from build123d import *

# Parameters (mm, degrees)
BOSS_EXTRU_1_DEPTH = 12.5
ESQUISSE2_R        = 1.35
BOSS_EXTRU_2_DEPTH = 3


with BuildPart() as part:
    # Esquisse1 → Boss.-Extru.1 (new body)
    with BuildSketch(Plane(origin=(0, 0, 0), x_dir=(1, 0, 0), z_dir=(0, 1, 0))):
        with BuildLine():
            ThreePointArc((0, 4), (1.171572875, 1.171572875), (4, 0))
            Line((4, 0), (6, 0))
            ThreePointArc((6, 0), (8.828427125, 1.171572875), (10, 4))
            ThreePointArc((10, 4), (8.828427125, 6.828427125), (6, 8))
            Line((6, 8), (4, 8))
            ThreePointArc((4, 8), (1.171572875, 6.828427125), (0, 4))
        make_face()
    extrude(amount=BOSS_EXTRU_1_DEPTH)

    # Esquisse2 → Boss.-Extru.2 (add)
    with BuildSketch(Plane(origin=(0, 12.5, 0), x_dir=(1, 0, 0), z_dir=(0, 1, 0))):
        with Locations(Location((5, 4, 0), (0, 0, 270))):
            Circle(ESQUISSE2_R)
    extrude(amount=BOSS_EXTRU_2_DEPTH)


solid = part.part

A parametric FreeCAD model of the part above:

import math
import FreeCAD as App
import Part
import Sketcher
from FreeCAD import Vector
Q = App.Units.Quantity

doc = App.newDocument("Part")
body = doc.addObject("PartDesign::Body", "Body")

# Sketch on XZ plane
sketch1 = doc.addObject("Sketcher::SketchObject", "Sketch")
body.addObject(sketch1)
sketch1.AttachmentSupport = (doc.XZ_Plane, [""])
sketch1.MapMode = "FlatFace"
sketch1.addGeometry(Part.ArcOfCircle(Part.Circle(Vector(4, -4, 0), Vector(0, 0, 1), 4), math.radians(90), math.radians(180)), False)
sketch1.addGeometry(Part.LineSegment(Vector(4, 0, 0), Vector(6, 0, 0)), False)
sketch1.addGeometry(Part.ArcOfCircle(Part.Circle(Vector(6, -4, 0), Vector(0, 0, 1), 4), math.radians(0), math.radians(90)), False)
sketch1.addGeometry(Part.ArcOfCircle(Part.Circle(Vector(6, -4, 0), Vector(0, 0, 1), 4), math.radians(-90), math.radians(0)), False)
sketch1.addGeometry(Part.LineSegment(Vector(6, -8, 0), Vector(4, -8, 0)), False)
sketch1.addGeometry(Part.ArcOfCircle(Part.Circle(Vector(4, -4, 0), Vector(0, 0, 1), 4), math.radians(180), math.radians(270)), False)
sketch1.addConstraint(Sketcher.Constraint("Tangent", 0, 1, 1, 1))
sketch1.addConstraint(Sketcher.Constraint("Tangent", 1, 2, 2, 2))
sketch1.addConstraint(Sketcher.Constraint("Tangent", 2, 1, 3, 2))
sketch1.addConstraint(Sketcher.Constraint("Tangent", 3, 1, 4, 1))
sketch1.addConstraint(Sketcher.Constraint("Tangent", 4, 2, 5, 2))
sketch1.addConstraint(Sketcher.Constraint("Tangent", 5, 1, 0, 2))
sketch1.addConstraint(Sketcher.Constraint("Horizontal", 1))
sketch1.addConstraint(Sketcher.Constraint("Horizontal", 4))
sketch1.addConstraint(Sketcher.Constraint("Equal", 0, 2))
sketch1.addConstraint(Sketcher.Constraint("Equal", 2, 3))
sketch1.addConstraint(Sketcher.Constraint("PointOnObject", 0, 1, -1))
sketch1.addConstraint(Sketcher.Constraint("PointOnObject", 5, 1, -2))
sketch1.addConstraint(Sketcher.Constraint("Horizontal", 5, 3, 2, 1))
sketch1.addConstraint(Sketcher.Constraint("Horizontal", 2, 1, 5, 1))
sketch1.addConstraint(Sketcher.Constraint("Radius", 0, Q("4 mm")))
sketch1.addConstraint(Sketcher.Constraint("DistanceX", 1, 1, 1, 2, Q("2 mm")))
pad1 = doc.addObject("PartDesign::Pad", "Pad")
body.addObject(pad1)
pad1.Profile = sketch1
pad1.Length = 12.5
pad1.Reversed = True

# Sketch on XZ plane
sketch2 = doc.addObject("Sketcher::SketchObject", "Sketch001")
body.addObject(sketch2)
sketch2.AttachmentSupport = (doc.XZ_Plane, [""])
sketch2.MapMode = "FlatFace"
sketch2.AttachmentOffset = App.Placement(Vector(0, 0, -12.5), App.Rotation())
sketch2.addGeometry(Part.Circle(Vector(5, -4, 0), Vector(0, 0, 1), 1.4), False)
sketch2.addConstraint(Sketcher.Constraint("Diameter", 0, Q("2.7 mm")))
sketch2.addConstraint(Sketcher.Constraint("DistanceX", -1, 1, 0, 3, Q("5 mm")))
sketch2.addConstraint(Sketcher.Constraint("DistanceY", 0, 3, -1, 1, Q("4 mm")))
pad2 = doc.addObject("PartDesign::Pad", "Pad001")
body.addObject(pad2)
pad2.Profile = sketch2
pad2.Length = 3
pad2.Reversed = True

doc.recompute()
